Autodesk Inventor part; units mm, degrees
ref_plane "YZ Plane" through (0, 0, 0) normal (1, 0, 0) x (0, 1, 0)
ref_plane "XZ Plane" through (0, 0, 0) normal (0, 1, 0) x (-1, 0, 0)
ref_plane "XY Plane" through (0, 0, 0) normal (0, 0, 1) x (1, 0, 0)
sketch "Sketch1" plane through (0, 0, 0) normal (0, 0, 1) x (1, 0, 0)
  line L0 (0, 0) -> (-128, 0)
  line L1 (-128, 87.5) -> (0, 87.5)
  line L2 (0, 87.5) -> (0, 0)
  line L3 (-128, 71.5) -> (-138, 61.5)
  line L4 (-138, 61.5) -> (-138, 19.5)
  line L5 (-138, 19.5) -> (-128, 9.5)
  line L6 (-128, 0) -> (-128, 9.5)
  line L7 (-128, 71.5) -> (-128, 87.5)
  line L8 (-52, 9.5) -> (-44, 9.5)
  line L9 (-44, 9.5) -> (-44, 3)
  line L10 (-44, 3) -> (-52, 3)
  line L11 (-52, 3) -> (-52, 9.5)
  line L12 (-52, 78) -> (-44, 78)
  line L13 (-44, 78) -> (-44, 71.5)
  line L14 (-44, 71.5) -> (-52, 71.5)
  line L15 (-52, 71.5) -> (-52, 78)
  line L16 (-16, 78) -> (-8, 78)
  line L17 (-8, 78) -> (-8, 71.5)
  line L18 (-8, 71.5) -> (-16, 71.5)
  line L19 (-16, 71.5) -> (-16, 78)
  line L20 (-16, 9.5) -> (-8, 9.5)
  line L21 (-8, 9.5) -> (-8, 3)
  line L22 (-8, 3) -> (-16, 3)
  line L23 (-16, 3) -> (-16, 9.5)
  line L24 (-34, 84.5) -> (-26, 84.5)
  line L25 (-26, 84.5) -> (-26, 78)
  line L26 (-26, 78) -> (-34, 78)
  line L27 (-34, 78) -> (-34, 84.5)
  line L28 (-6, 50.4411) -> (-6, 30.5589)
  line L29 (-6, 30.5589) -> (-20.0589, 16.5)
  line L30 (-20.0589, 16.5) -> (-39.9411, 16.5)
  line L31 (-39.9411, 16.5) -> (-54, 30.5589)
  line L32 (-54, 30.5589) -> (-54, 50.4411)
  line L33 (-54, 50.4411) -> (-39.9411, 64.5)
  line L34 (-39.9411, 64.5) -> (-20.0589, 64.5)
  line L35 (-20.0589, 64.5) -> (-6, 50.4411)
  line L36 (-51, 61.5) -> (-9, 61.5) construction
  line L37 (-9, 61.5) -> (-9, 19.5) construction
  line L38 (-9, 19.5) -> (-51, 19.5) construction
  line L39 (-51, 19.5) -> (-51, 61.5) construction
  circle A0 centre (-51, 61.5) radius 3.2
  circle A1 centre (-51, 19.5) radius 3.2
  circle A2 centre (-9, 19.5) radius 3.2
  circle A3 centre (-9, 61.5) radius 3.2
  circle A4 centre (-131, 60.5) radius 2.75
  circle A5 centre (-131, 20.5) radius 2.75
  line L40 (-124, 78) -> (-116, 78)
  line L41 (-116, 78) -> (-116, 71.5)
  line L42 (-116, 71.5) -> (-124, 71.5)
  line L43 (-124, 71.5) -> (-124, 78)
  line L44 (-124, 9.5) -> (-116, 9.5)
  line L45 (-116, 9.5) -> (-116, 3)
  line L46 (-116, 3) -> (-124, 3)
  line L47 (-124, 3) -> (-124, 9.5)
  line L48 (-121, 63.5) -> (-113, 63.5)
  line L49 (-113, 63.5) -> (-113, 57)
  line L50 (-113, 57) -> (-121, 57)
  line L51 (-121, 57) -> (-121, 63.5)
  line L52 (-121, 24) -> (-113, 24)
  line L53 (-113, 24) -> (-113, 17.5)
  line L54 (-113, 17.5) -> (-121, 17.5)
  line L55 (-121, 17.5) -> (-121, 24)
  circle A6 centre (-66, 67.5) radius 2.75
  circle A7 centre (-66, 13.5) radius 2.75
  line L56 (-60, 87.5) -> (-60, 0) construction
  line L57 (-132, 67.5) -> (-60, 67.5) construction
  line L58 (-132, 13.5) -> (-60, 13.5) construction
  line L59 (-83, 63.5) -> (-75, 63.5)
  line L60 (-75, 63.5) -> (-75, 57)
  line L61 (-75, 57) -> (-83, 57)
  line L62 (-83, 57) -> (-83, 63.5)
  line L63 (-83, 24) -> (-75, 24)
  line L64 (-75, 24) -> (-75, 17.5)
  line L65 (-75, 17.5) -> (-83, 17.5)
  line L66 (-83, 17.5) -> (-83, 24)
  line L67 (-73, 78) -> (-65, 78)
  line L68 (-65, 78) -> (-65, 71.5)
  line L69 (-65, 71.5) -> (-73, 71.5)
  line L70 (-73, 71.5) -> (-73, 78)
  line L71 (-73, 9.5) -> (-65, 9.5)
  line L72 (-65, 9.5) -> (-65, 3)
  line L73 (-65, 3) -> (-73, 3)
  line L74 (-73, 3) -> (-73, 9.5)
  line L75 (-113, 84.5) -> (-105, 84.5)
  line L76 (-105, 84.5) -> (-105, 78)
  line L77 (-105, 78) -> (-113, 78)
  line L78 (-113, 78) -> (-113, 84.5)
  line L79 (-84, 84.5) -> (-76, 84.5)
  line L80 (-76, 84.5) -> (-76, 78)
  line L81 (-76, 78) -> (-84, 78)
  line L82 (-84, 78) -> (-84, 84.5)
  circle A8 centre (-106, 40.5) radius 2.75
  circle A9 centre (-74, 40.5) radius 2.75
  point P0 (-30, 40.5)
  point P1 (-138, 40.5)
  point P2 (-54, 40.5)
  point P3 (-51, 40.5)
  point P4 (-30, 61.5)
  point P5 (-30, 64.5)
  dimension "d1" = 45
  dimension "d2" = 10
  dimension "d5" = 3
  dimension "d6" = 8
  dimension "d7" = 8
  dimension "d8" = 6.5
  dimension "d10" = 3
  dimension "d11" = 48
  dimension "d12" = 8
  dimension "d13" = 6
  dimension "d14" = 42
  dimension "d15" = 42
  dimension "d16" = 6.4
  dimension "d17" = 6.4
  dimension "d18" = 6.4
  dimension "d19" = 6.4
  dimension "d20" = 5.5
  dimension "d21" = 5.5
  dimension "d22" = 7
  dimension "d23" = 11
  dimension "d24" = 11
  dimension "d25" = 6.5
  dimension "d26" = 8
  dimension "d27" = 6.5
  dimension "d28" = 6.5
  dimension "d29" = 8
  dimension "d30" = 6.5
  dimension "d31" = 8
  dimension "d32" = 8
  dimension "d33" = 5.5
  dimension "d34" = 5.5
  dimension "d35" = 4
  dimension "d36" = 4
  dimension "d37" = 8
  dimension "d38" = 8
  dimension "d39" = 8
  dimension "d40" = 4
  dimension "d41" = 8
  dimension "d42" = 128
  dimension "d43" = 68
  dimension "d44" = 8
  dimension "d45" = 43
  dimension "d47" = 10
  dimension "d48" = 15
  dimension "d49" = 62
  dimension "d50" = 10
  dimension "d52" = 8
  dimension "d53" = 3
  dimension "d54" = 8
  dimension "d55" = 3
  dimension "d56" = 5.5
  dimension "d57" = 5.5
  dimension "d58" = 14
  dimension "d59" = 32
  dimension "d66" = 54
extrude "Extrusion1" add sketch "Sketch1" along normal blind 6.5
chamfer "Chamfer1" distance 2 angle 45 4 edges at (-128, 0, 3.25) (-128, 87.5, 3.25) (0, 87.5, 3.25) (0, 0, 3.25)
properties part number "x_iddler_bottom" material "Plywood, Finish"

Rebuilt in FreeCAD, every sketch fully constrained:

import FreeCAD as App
import Part
import Sketcher


def edges_at(feature, points):
    """Names of the edges that pass closest to the given points."""
    edges = feature.Shape.Edges
    near = lambda p: min(range(len(edges)), key=lambda i: edges[i].distToShape(Part.Vertex(*p))[0])
    return sorted({f"Edge{near(p) + 1}" for p in points})

doc = App.newDocument("Part")
params = doc.addObject("Spreadsheet::Sheet", "Params")
for row, (alias, value) in enumerate([
    ("sketch1_diameter", "5.5 mm"),
    ("sketch1_diameter2", "6.4 mm"),
    ("sketch1_width", "128 mm"),
    ("sketch1_width2", "8 mm"),
    ("sketch1_height", "42 mm"),
    ("pad1_length", "6.5 mm"),
    ("chamfer_size", "2 mm"),
], start=1):
    params.set(f"A{row}", alias)
    params.set(f"B{row}", "=" + value)
    params.setAlias(f"B{row}", alias)

body = doc.addObject("PartDesign::Body", "Body")

# Sketch on XY plane
sketch1 = body.newObject("Sketcher::SketchObject", "Sketch")
sketch1.AttachmentSupport = (doc.getObject("XY_Plane"), [""])
sketch1.MapMode = "FlatFace"
sketch1.addGeometry(Part.LineSegment(App.Vector(-128, 0, 0), App.Vector(0, 0, 0)), False)
sketch1.addGeometry(Part.LineSegment(App.Vector(0, 0, 0), App.Vector(0, 87.5, 0)), False)
sketch1.addGeometry(Part.LineSegment(App.Vector(0, 87.5, 0), App.Vector(-128, 87.5, 0)), False)
sketch1.addGeometry(Part.LineSegment(App.Vector(-128, 87.5, 0), App.Vector(-128, 71.5, 0)), False)
sketch1.addGeometry(Part.LineSegment(App.Vector(-128, 71.5, 0), App.Vector(-138, 61.5, 0)), False)
sketch1.addGeometry(Part.LineSegment(App.Vector(-138, 61.5, 0), App.Vector(-138, 19.5, 0)), False)
sketch1.addGeometry(Part.LineSegment(App.Vector(-138, 19.5, 0), App.Vector(-128, 9.5, 0)), False)
sketch1.addGeometry(Part.LineSegment(App.Vector(-128, 9.5, 0), App.Vector(-128, 0, 0)), False)
sketch1.addGeometry(Part.LineSegment(App.Vector(-124, 3, 0), App.Vector(-124, 9.5, 0)), False)
sketch1.addGeometry(Part.LineSegment(App.Vector(-124, 9.5, 0), App.Vector(-116, 9.5, 0)), False)
sketch1.addGeometry(Part.LineSegment(App.Vector(-116, 9.5, 0), App.Vector(-116, 3, 0)), False)
sketch1.addGeometry(Part.LineSegment(App.Vector(-116, 3, 0), App.Vector(-124, 3, 0)), False)
sketch1.addGeometry(Part.Circle(App.Vector(-131, 20.5, 0), App.Vector(0, 0, 1), 2.75), False)
sketch1.addGeometry(Part.LineSegment(App.Vector(-121, 17.5, 0), App.Vector(-121, 24, 0)), False)
sketch1.addGeometry(Part.LineSegment(App.Vector(-121, 24, 0), App.Vector(-113, 24, 0)), False)
sketch1.addGeometry(Part.LineSegment(App.Vector(-113, 24, 0), App.Vector(-113, 17.5, 0)), False)
sketch1.addGeometry(Part.LineSegment(App.Vector(-113, 17.5, 0), App.Vector(-121, 17.5, 0)), False)
sketch1.addGeometry(Part.LineSegment(App.Vector(-83, 17.5, 0), App.Vector(-83, 24, 0)), False)
sketch1.addGeometry(Part.LineSegment(App.Vector(-83, 24, 0), App.Vector(-75, 24, 0)), False)
sketch1.addGeometry(Part.LineSegment(App.Vector(-75, 24, 0), App.Vector(-75, 17.5, 0)), False)
sketch1.addGeometry(Part.LineSegment(App.Vector(-75, 17.5, 0), App.Vector(-83, 17.5, 0)), False)
sketch1.addGeometry(Part.Circle(App.Vector(-106, 40.5, 0), App.Vector(0, 0, 1), 2.75), False)
sketch1.addGeometry(Part.Circle(App.Vector(-74, 40.5, 0), App.Vector(0, 0, 1), 2.75), False)
sketch1.addGeometry(Part.LineSegment(App.Vector(-73, 3, 0), App.Vector(-73, 9.5, 0)), False)
sketch1.addGeometry(Part.LineSegment(App.Vector(-73, 9.5, 0), App.Vector(-65, 9.5, 0)), False)
sketch1.addGeometry(Part.LineSegment(App.Vector(-65, 9.5, 0), App.Vector(-65, 3, 0)), False)
sketch1.addGeometry(Part.LineSegment(App.Vector(-65, 3, 0), App.Vector(-73, 3, 0)), False)
sketch1.addGeometry(Part.LineSegment(App.Vector(-52, 3, 0), App.Vector(-52, 9.5, 0)), False)
sketch1.addGeometry(Part.LineSegment(App.Vector(-52, 9.5, 0), App.Vector(-44, 9.5, 0)), False)
sketch1.addGeometry(Part.LineSegment(App.Vector(-44, 9.5, 0), App.Vector(-44, 3, 0)), False)
sketch1.addGeometry(Part.LineSegment(App.Vector(-44, 3, 0), App.Vector(-52, 3, 0)), False)
sketch1.addGeometry(Part.Circle(App.Vector(-66, 13.5, 0), App.Vector(0, 0, 1), 2.75), False)
sketch1.addGeometry(Part.Circle(App.Vector(-51, 19.5, 0), App.Vector(0, 0, 1), 3.2), False)
sketch1.addGeometry(Part.LineSegment(App.Vector(-16, 3, 0), App.Vector(-16, 9.5, 0)), False)
sketch1.addGeometry(Part.LineSegment(App.Vector(-16, 9.5, 0), App.Vector(-8, 9.5, 0)), False)
sketch1.addGeometry(Part.LineSegment(App.Vector(-8, 9.5, 0), App.Vector(-8, 3, 0)), False)
sketch1.addGeometry(Part.LineSegment(App.Vector(-8, 3, 0), App.Vector(-16, 3, 0)), False)
sketch1.addGeometry(Part.Circle(App.Vector(-9, 19.5, 0), App.Vector(0, 0, 1), 3.2), False)
sketch1.addGeometry(Part.LineSegment(App.Vector(-20.0589, 64.5, 0), App.Vector(-6, 50.4411, 0)), False)
sketch1.addGeometry(Part.LineSegment(App.Vector(-6, 50.4411, 0), App.Vector(-6, 30.5589, 0)), False)
sketch1.addGeometry(Part.LineSegment(App.Vector(-6, 30.5589, 0), App.Vector(-20.0589, 16.5, 0)), False)
sketch1.addGeometry(Part.LineSegment(App.Vector(-20.0589, 16.5, 0), App.Vector(-39.9411, 16.5, 0)), False)
sketch1.addGeometry(Part.LineSegment(App.Vector(-39.9411, 16.5, 0), App.Vector(-54, 30.5589, 0)), False)
sketch1.addGeometry(Part.LineSegment(App.Vector(-54, 30.5589, 0), App.Vector(-54, 50.4411, 0)), False)
sketch1.addGeometry(Part.LineSegment(App.Vector(-54, 50.4411, 0), App.Vector(-39.9411, 64.5, 0)), False)
sketch1.addGeometry(Part.LineSegment(App.Vector(-39.9411, 64.5, 0), App.Vector(-20.0589, 64.5, 0)), False)
sketch1.addGeometry(Part.Circle(App.Vector(-131, 60.5, 0), App.Vector(0, 0, 1), 2.75), False)
sketch1.addGeometry(Part.LineSegment(App.Vector(-121, 57, 0), App.Vector(-121, 63.5, 0)), False)
sketch1.addGeometry(Part.LineSegment(App.Vector(-121, 63.5, 0), App.Vector(-113, 63.5, 0)), False)
sketch1.addGeometry(Part.LineSegment(App.Vector(-113, 63.5, 0), App.Vector(-113, 57, 0)), False)
sketch1.addGeometry(Part.LineSegment(App.Vector(-113, 57, 0), App.Vector(-121, 57, 0)), False)
sketch1.addGeometry(Part.LineSegment(App.Vector(-83, 57, 0), App.Vector(-83, 63.5, 0)), False)
sketch1.addGeometry(Part.LineSegment(App.Vector(-83, 63.5, 0), App.Vector(-75, 63.5, 0)), False)
sketch1.addGeometry(Part.LineSegment(App.Vector(-75, 63.5, 0), App.Vector(-75, 57, 0)), False)
sketch1.addGeometry(Part.LineSegment(App.Vector(-75, 57, 0), App.Vector(-83, 57, 0)), False)
sketch1.addGeometry(Part.LineSegment(App.Vector(-124, 71.5, 0), App.Vector(-124, 78, 0)), False)
sketch1.addGeometry(Part.LineSegment(App.Vector(-124, 78, 0), App.Vector(-116, 78, 0)), False)
sketch1.addGeometry(Part.LineSegment(App.Vector(-116, 78, 0), App.Vector(-116, 71.5, 0)), False)
sketch1.addGeometry(Part.LineSegment(App.Vector(-116, 71.5, 0), App.Vector(-124, 71.5, 0)), False)
sketch1.addGeometry(Part.LineSegment(App.Vector(-113, 78, 0), App.Vector(-113, 84.5, 0)), False)
sketch1.addGeometry(Part.LineSegment(App.Vector(-113, 84.5, 0), App.Vector(-105, 84.5, 0)), False)
sketch1.addGeometry(Part.LineSegment(App.Vector(-105, 84.5, 0), App.Vector(-105, 78, 0)), False)
sketch1.addGeometry(Part.LineSegment(App.Vector(-105, 78, 0), App.Vector(-113, 78, 0)), False)
sketch1.addGeometry(Part.LineSegment(App.Vector(-84, 78, 0), App.Vector(-84, 84.5, 0)), False)
sketch1.addGeometry(Part.LineSegment(App.Vector(-84, 84.5, 0), App.Vector(-76, 84.5, 0)), False)
sketch1.addGeometry(Part.LineSegment(App.Vector(-76, 84.5, 0), App.Vector(-76, 78, 0)), False)
sketch1.addGeometry(Part.LineSegment(App.Vector(-76, 78, 0), App.Vector(-84, 78, 0)), False)
sketch1.addGeometry(Part.Circle(App.Vector(-51, 61.5, 0), App.Vector(0, 0, 1), 3.2), False)
sketch1.addGeometry(Part.Circle(App.Vector(-9, 61.5, 0), App.Vector(0, 0, 1), 3.2), False)
sketch1.addGeometry(Part.Circle(App.Vector(-66, 67.5, 0), App.Vector(0, 0, 1), 2.75), False)
sketch1.addGeometry(Part.LineSegment(App.Vector(-73, 71.5, 0), App.Vector(-73, 78, 0)), False)
sketch1.addGeometry(Part.LineSegment(App.Vector(-73, 78, 0), App.Vector(-65, 78, 0)), False)
sketch1.addGeometry(Part.LineSegment(App.Vector(-65, 78, 0), App.Vector(-65, 71.5, 0)), False)
sketch1.addGeometry(Part.LineSegment(App.Vector(-65, 71.5, 0), App.Vector(-73, 71.5, 0)), False)
sketch1.addGeometry(Part.LineSegment(App.Vector(-52, 71.5, 0), App.Vector(-52, 78, 0)), False)
sketch1.addGeometry(Part.LineSegment(App.Vector(-52, 78, 0), App.Vector(-44, 78, 0)), False)
sketch1.addGeometry(Part.LineSegment(App.Vector(-44, 78, 0), App.Vector(-44, 71.5, 0)), False)
sketch1.addGeometry(Part.LineSegment(App.Vector(-44, 71.5, 0), App.Vector(-52, 71.5, 0)), False)
sketch1.addGeometry(Part.LineSegment(App.Vector(-16, 71.5, 0), App.Vector(-16, 78, 0)), False)
sketch1.addGeometry(Part.LineSegment(App.Vector(-16, 78, 0), App.Vector(-8, 78, 0)), False)
sketch1.addGeometry(Part.LineSegment(App.Vector(-8, 78, 0), App.Vector(-8, 71.5, 0)), False)
sketch1.addGeometry(Part.LineSegment(App.Vector(-8, 71.5, 0), App.Vector(-16, 71.5, 0)), False)
sketch1.addGeometry(Part.LineSegment(App.Vector(-34, 78, 0), App.Vector(-34, 84.5, 0)), False)
sketch1.addGeometry(Part.LineSegment(App.Vector(-34, 84.5, 0), App.Vector(-26, 84.5, 0)), False)
sketch1.addGeometry(Part.LineSegment(App.Vector(-26, 84.5, 0), App.Vector(-26, 78, 0)), False)
sketch1.addGeometry(Part.LineSegment(App.Vector(-26, 78, 0), App.Vector(-34, 78, 0)), False)
sketch1.addConstraint(Sketcher.Constraint("Coincident", 0, 2, 1, 1))
sketch1.addConstraint(Sketcher.Constraint("Coincident", 1, 2, 2, 1))
sketch1.addConstraint(Sketcher.Constraint("Coincident", 2, 2, 3, 1))
sketch1.addConstraint(Sketcher.Constraint("Coincident", 3, 2, 4, 1))
sketch1.addConstraint(Sketcher.Constraint("Coincident", 4, 2, 5, 1))
sketch1.addConstraint(Sketcher.Constraint("Coincident", 5, 2, 6, 1))
sketch1.addConstraint(Sketcher.Constraint("Coincident", 6, 2, 7, 1))
sketch1.addConstraint(Sketcher.Constraint("Coincident", 7, 2, 0, 1))
sketch1.addConstraint(Sketcher.Constraint("Coincident", 8, 2, 9, 1))
sketch1.addConstraint(Sketcher.Constraint("Coincident", 9, 2, 10, 1))
sketch1.addConstraint(Sketcher.Constraint("Coincident", 10, 2, 11, 1))
sketch1.addConstraint(Sketcher.Constraint("Coincident", 11, 2, 8, 1))
sketch1.addConstraint(Sketcher.Constraint("Coincident", 13, 2, 14, 1))
sketch1.addConstraint(Sketcher.Constraint("Coincident", 14, 2, 15, 1))
sketch1.addConstraint(Sketcher.Constraint("Coincident", 15, 2, 16, 1))
sketch1.addConstraint(Sketcher.Constraint("Coincident", 16, 2, 13, 1))
sketch1.addConstraint(Sketcher.Constraint("Coincident", 17, 2, 18, 1))
sketch1.addConstraint(Sketcher.Constraint("Coincident", 18, 2, 19, 1))
sketch1.addConstraint(Sketcher.Constraint("Coincident", 19, 2, 20, 1))
sketch1.addConstraint(Sketcher.Constraint("Coincident", 20, 2, 17, 1))
sketch1.addConstraint(Sketcher.Constraint("Coincident", 23, 2, 24, 1))
sketch1.addConstraint(Sketcher.Constraint("Coincident", 24, 2, 25, 1))
sketch1.addConstraint(Sketcher.Constraint("Coincident", 25, 2, 26, 1))
sketch1.addConstraint(Sketcher.Constraint("Coincident", 26, 2, 23, 1))
sketch1.addConstraint(Sketcher.Constraint("Coincident", 27, 2, 28, 1))
sketch1.addConstraint(Sketcher.Constraint("Coincident", 28, 2, 29, 1))
sketch1.addConstraint(Sketcher.Constraint("Coincident", 29, 2, 30, 1))
sketch1.addConstraint(Sketcher.Constraint("Coincident", 30, 2, 27, 1))
sketch1.addConstraint(Sketcher.Constraint("Coincident", 33, 2, 34, 1))
sketch1.addConstraint(Sketcher.Constraint("Coincident", 34, 2, 35, 1))
sketch1.addConstraint(Sketcher.Constraint("Coincident", 35, 2, 36, 1))
sketch1.addConstraint(Sketcher.Constraint("Coincident", 36, 2, 33, 1))
sketch1.addConstraint(Sketcher.Constraint("Coincident", 38, 2, 39, 1))
sketch1.addConstraint(Sketcher.Constraint("Coincident", 39, 2, 40, 1))
sketch1.addConstraint(Sketcher.Constraint("Coincident", 40, 2, 41, 1))
sketch1.addConstraint(Sketcher.Constraint("Coincident", 41, 2, 42, 1))
sketch1.addConstraint(Sketcher.Constraint("Coincident", 42, 2, 43, 1))
sketch1.addConstraint(Sketcher.Constraint("Coincident", 43, 2, 44, 1))
sketch1.addConstraint(Sketcher.Constraint("Coincident", 44, 2, 45, 1))
sketch1.addConstraint(Sketcher.Constraint("Coincident", 45, 2, 38, 1))
sketch1.addConstraint(Sketcher.Constraint("Coincident", 47, 2, 48, 1))
sketch1.addConstraint(Sketcher.Constraint("Coincident", 48, 2, 49, 1))
sketch1.addConstraint(Sketcher.Constraint("Coincident", 49, 2, 50, 1))
sketch1.addConstraint(Sketcher.Constraint("Coincident", 50, 2, 47, 1))
sketch1.addConstraint(Sketcher.Constraint("Coincident", 51, 2, 52, 1))
sketch1.addConstraint(Sketcher.Constraint("Coincident", 52, 2, 53, 1))
sketch1.addConstraint(Sketcher.Constraint("Coincident", 53, 2, 54, 1))
sketch1.addConstraint(Sketcher.Constraint("Coincident", 54, 2, 51, 1))
sketch1.addConstraint(Sketcher.Constraint("Coincident", 55, 2, 56, 1))
sketch1.addConstraint(Sketcher.Constraint("Coincident", 56, 2, 57, 1))
sketch1.addConstraint(Sketcher.Constraint("Coincident", 57, 2, 58, 1))
sketch1.addConstraint(Sketcher.Constraint("Coincident", 58, 2, 55, 1))
sketch1.addConstraint(Sketcher.Constraint("Coincident", 59, 2, 60, 1))
sketch1.addConstraint(Sketcher.Constraint("Coincident", 60, 2, 61, 1))
sketch1.addConstraint(Sketcher.Constraint("Coincident", 61, 2, 62, 1))
sketch1.addConstraint(Sketcher.Constraint("Coincident", 62, 2, 59, 1))
sketch1.addConstraint(Sketcher.Constraint("Coincident", 63, 2, 64, 1))
sketch1.addConstraint(Sketcher.Constraint("Coincident", 64, 2, 65, 1))
sketch1.addConstraint(Sketcher.Constraint("Coincident", 65, 2, 66, 1))
sketch1.addConstraint(Sketcher.Constraint("Coincident", 66, 2, 63, 1))
sketch1.addConstraint(Sketcher.Constraint("Coincident", 70, 2, 71, 1))
sketch1.addConstraint(Sketcher.Constraint("Coincident", 71, 2, 72, 1))
sketch1.addConstraint(Sketcher.Constraint("Coincident", 72, 2, 73, 1))
sketch1.addConstraint(Sketcher.Constraint("Coincident", 73, 2, 70, 1))
sketch1.addConstraint(Sketcher.Constraint("Coincident", 74, 2, 75, 1))
sketch1.addConstraint(Sketcher.Constraint("Coincident", 75, 2, 76, 1))
sketch1.addConstraint(Sketcher.Constraint("Coincident", 76, 2, 77, 1))
sketch1.addConstraint(Sketcher.Constraint("Coincident", 77, 2, 74, 1))
sketch1.addConstraint(Sketcher.Constraint("Coincident", 78, 2, 79, 1))
sketch1.addConstraint(Sketcher.Constraint("Coincident", 79, 2, 80, 1))
sketch1.addConstraint(Sketcher.Constraint("Coincident", 80, 2, 81, 1))
sketch1.addConstraint(Sketcher.Constraint("Coincident", 81, 2, 78, 1))
sketch1.addConstraint(Sketcher.Constraint("Coincident", 82, 2, 83, 1))
sketch1.addConstraint(Sketcher.Constraint("Coincident", 83, 2, 84, 1))
sketch1.addConstraint(Sketcher.Constraint("Coincident", 84, 2, 85, 1))
sketch1.addConstraint(Sketcher.Constraint("Coincident", 85, 2, 82, 1))
sketch1.addConstraint(Sketcher.Constraint("Horizontal", 0))
sketch1.addConstraint(Sketcher.Constraint("Vertical", 1))
sketch1.addConstraint(Sketcher.Constraint("Horizontal", 2))
sketch1.addConstraint(Sketcher.Constraint("Vertical", 3))
sketch1.addConstraint(Sketcher.Constraint("Vertical", 5))
sketch1.addConstraint(Sketcher.Constraint("Vertical", 7))
sketch1.addConstraint(Sketcher.Constraint("Vertical", 8))
sketch1.addConstraint(Sketcher.Constraint("Horizontal", 9))
sketch1.addConstraint(Sketcher.Constraint("Vertical", 10))
sketch1.addConstraint(Sketcher.Constraint("Horizontal", 11))
sketch1.addConstraint(Sketcher.Constraint("Vertical", 13))
sketch1.addConstraint(Sketcher.Constraint("Horizontal", 14))
sketch1.addConstraint(Sketcher.Constraint("Vertical", 15))
sketch1.addConstraint(Sketcher.Constraint("Horizontal", 16))
sketch1.addConstraint(Sketcher.Constraint("Vertical", 17))
sketch1.addConstraint(Sketcher.Constraint("Horizontal", 18))
sketch1.addConstraint(Sketcher.Constraint("Vertical", 19))
sketch1.addConstraint(Sketcher.Constraint("Horizontal", 20))
sketch1.addConstraint(Sketcher.Constraint("Vertical", 23))
sketch1.addConstraint(Sketcher.Constraint("Horizontal", 24))
sketch1.addConstraint(Sketcher.Constraint("Vertical", 25))
sketch1.addConstraint(Sketcher.Constraint("Horizontal", 26))
sketch1.addConstraint(Sketcher.Constraint("Vertical", 27))
sketch1.addConstraint(Sketcher.Constraint("Horizontal", 28))
sketch1.addConstraint(Sketcher.Constraint("Vertical", 29))
sketch1.addConstraint(Sketcher.Constraint("Horizontal", 30))
sketch1.addConstraint(Sketcher.Constraint("Vertical", 33))
sketch1.addConstraint(Sketcher.Constraint("Horizontal", 34))
sketch1.addConstraint(Sketcher.Constraint("Vertical", 35))
sketch1.addConstraint(Sketcher.Constraint("Horizontal", 36))
sketch1.addConstraint(Sketcher.Constraint("Vertical", 39))
sketch1.addConstraint(Sketcher.Constraint("Horizontal", 41))
sketch1.addConstraint(Sketcher.Constraint("Vertical", 43))
sketch1.addConstraint(Sketcher.Constraint("Horizontal", 45))
sketch1.addConstraint(Sketcher.Constraint("Vertical", 47))
sketch1.addConstraint(Sketcher.Constraint("Horizontal", 48))
sketch1.addConstraint(Sketcher.Constraint("Vertical", 49))
sketch1.addConstraint(Sketcher.Constraint("Horizontal", 50))
sketch1.addConstraint(Sketcher.Constraint("Vertical", 51))
sketch1.addConstraint(Sketcher.Constraint("Horizontal", 52))
sketch1.addConstraint(Sketcher.Constraint("Vertical", 53))
sketch1.addConstraint(Sketcher.Constraint("Horizontal", 54))
sketch1.addConstraint(Sketcher.Constraint("Vertical", 55))
sketch1.addConstraint(Sketcher.Constraint("Horizontal", 56))
sketch1.addConstraint(Sketcher.Constraint("Vertical", 57))
sketch1.addConstraint(Sketcher.Constraint("Horizontal", 58))
sketch1.addConstraint(Sketcher.Constraint("Vertical", 59))
sketch1.addConstraint(Sketcher.Constraint("Horizontal", 60))
sketch1.addConstraint(Sketcher.Constraint("Vertical", 61))
sketch1.addConstraint(Sketcher.Constraint("Horizontal", 62))
sketch1.addConstraint(Sketcher.Constraint("Vertical", 63))
sketch1.addConstraint(Sketcher.Constraint("Horizontal", 64))
sketch1.addConstraint(Sketcher.Constraint("Vertical", 65))
sketch1.addConstraint(Sketcher.Constraint("Horizontal", 66))
sketch1.addConstraint(Sketcher.Constraint("Vertical", 70))
sketch1.addConstraint(Sketcher.Constraint("Horizontal", 71))
sketch1.addConstraint(Sketcher.Constraint("Vertical", 72))
sketch1.addConstraint(Sketcher.Constraint("Horizontal", 73))
sketch1.addConstraint(Sketcher.Constraint("Vertical", 74))
sketch1.addConstraint(Sketcher.Constraint("Horizontal", 75))
sketch1.addConstraint(Sketcher.Constraint("Vertical", 76))
sketch1.addConstraint(Sketcher.Constraint("Horizontal", 77))
sketch1.addConstraint(Sketcher.Constraint("Vertical", 78))
sketch1.addConstraint(Sketcher.Constraint("Horizontal", 79))
sketch1.addConstraint(Sketcher.Constraint("Vertical", 80))
sketch1.addConstraint(Sketcher.Constraint("Horizontal", 81))
sketch1.addConstraint(Sketcher.Constraint("Vertical", 82))
sketch1.addConstraint(Sketcher.Constraint("Horizontal", 83))
sketch1.addConstraint(Sketcher.Constraint("Vertical", 84))
sketch1.addConstraint(Sketcher.Constraint("Horizontal", 85))
sketch1.addConstraint(Sketcher.Constraint("Coincident", 0, 2, -1, 1))
sketch1.addConstraint(Sketcher.Constraint("Equal", 12, 21))
sketch1.addConstraint(Sketcher.Constraint("Equal", 21, 22))
sketch1.addConstraint(Sketcher.Constraint("Equal", 22, 31))
sketch1.addConstraint(Sketcher.Constraint("Equal", 32, 37))
sketch1.addConstraint(Sketcher.Constraint("Equal", 31, 46))
sketch1.addConstraint(Sketcher.Constraint("Equal", 37, 67))
sketch1.addConstraint(Sketcher.Constraint("Equal", 67, 68))
sketch1.addConstraint(Sketcher.Constraint("Equal", 46, 69))
sketch1.addConstraint(Sketcher.Constraint("Perpendicular", 4, 6))
sketch1.addConstraint(Sketcher.Constraint("Parallel", 6, 38))
sketch1.addConstraint(Sketcher.Constraint("Perpendicular", 38, 40))
sketch1.addConstraint(Sketcher.Constraint("Perpendicular", 40, 42))
sketch1.addConstraint(Sketcher.Constraint("Perpendicular", 42, 44))
sketch1.addConstraint(Sketcher.Constraint("Horizontal", 21, 3, 22, 3))
sketch1.addConstraint(Sketcher.Constraint("Horizontal", 32, 3, 37, 3))
sketch1.addConstraint(Sketcher.Constraint("Horizontal", 67, 3, 68, 3))
sketch1.addConstraint(Sketcher.Constraint("Horizontal", 68, 3, 4, 2))
sketch1.addConstraint(Sketcher.Constraint("Horizontal", 37, 3, 5, 2))
sketch1.addConstraint(Sketcher.Constraint("Horizontal", 6, 2, 8, 2))
sketch1.addConstraint(Sketcher.Constraint("Horizontal", 14, 2, 17, 2))
sketch1.addConstraint(Sketcher.Constraint("Horizontal", 16, 2, 19, 2))
sketch1.addConstraint(Sketcher.Constraint("Horizontal", 9, 2, 23, 2))
sketch1.addConstraint(Sketcher.Constraint("Horizontal", 11, 2, 25, 2))
sketch1.addConstraint(Sketcher.Constraint("Horizontal", 24, 2, 27, 2))
sketch1.addConstraint(Sketcher.Constraint("Horizontal", 26, 2, 29, 2))
sketch1.addConstraint(Sketcher.Constraint("Horizontal", 28, 2, 33, 2))
sketch1.addConstraint(Sketcher.Constraint("Horizontal", 30, 2, 35, 2))
sketch1.addConstraint(Sketcher.Constraint("Horizontal", 39, 2, 42, 2))
sketch1.addConstraint(Sketcher.Constraint("Horizontal", 38, 2, 43, 2))
sketch1.addConstraint(Sketcher.Constraint("Horizontal", 48, 2, 51, 2))
sketch1.addConstraint(Sketcher.Constraint("Horizontal", 50, 2, 53, 2))
sketch1.addConstraint(Sketcher.Constraint("Horizontal", 3, 2, 57, 2))
sketch1.addConstraint(Sketcher.Constraint("Horizontal", 56, 2, 61, 2))
sketch1.addConstraint(Sketcher.Constraint("Horizontal", 60, 2, 63, 2))
sketch1.addConstraint(Sketcher.Constraint("Horizontal", 62, 2, 65, 2))
sketch1.addConstraint(Sketcher.Constraint("Horizontal", 66, 2, 70, 2))
sketch1.addConstraint(Sketcher.Constraint("Horizontal", 58, 2, 72, 2))
sketch1.addConstraint(Sketcher.Constraint("Horizontal", 71, 2, 74, 2))
sketch1.addConstraint(Sketcher.Constraint("Horizontal", 73, 2, 76, 2))
sketch1.addConstraint(Sketcher.Constraint("Horizontal", 75, 2, 78, 2))
sketch1.addConstraint(Sketcher.Constraint("Horizontal", 77, 2, 80, 2))
sketch1.addConstraint(Sketcher.Constraint("Horizontal", 64, 2, 82, 2))
sketch1.addConstraint(Sketcher.Constraint("Horizontal", 79, 2, 84, 2))
sketch1.addConstraint(Sketcher.Constraint("Vertical", 12, 3, 46, 3))
sketch1.addConstraint(Sketcher.Constraint("Vertical", 32, 3, 67, 3))
sketch1.addConstraint(Sketcher.Constraint("Vertical", 37, 3, 68, 3))
sketch1.addConstraint(Sketcher.Constraint("Vertical", 31, 3, 69, 3))
sketch1.addConstraint(Sketcher.Constraint("Vertical", 3, 2, 6, 2))
sketch1.addConstraint(Sketcher.Constraint("Vertical", 41, 2, 44, 2))
sketch1.addConstraint(Sketcher.Constraint("Vertical", 40, 2, 45, 2))
sketch1.addConstraint(Sketcher.Constraint("Vertical", 16, 2, 47, 2))
sketch1.addConstraint(Sketcher.Constraint("Vertical", 15, 2, 48, 2))
sketch1.addConstraint(Sketcher.Constraint("Vertical", 20, 2, 51, 2))
sketch1.addConstraint(Sketcher.Constraint("Vertical", 19, 2, 52, 2))
sketch1.addConstraint(Sketcher.Constraint("Vertical", 11, 2, 55, 2))
sketch1.addConstraint(Sketcher.Constraint("Vertical", 10, 2, 56, 2))
sketch1.addConstraint(Sketcher.Constraint("Vertical", 49, 2, 59, 2))
sketch1.addConstraint(Sketcher.Constraint("Vertical", 26, 2, 70, 2))
sketch1.addConstraint(Sketcher.Constraint("Vertical", 25, 2, 71, 2))
sketch1.addConstraint(Sketcher.Constraint("Vertical", 30, 2, 74, 2))
sketch1.addConstraint(Sketcher.Constraint("Vertical", 29, 2, 75, 2))
sketch1.addConstraint(Sketcher.Constraint("Vertical", 36, 2, 78, 2))
sketch1.addConstraint(Sketcher.Constraint("Vertical", 35, 2, 79, 2))
sketch1.addConstraint(Sketcher.Constraint("Equal", 11, 14))
sketch1.addConstraint(Sketcher.Constraint("Equal", 16, 18))
sketch1.addConstraint(Sketcher.Constraint("Equal", 20, 24))
sketch1.addConstraint(Sketcher.Constraint("Equal", 26, 28))
sketch1.addConstraint(Sketcher.Constraint("Equal", 30, 34))
sketch1.addConstraint(Sketcher.Constraint("Equal", 58, 60))
sketch1.addConstraint(Sketcher.Constraint("Equal", 62, 64))
sketch1.addConstraint(Sketcher.Constraint("Equal", 81, 83))
sketch1.addConstraint(Sketcher.Constraint("Equal", 10, 13))
sketch1.addConstraint(Sketcher.Constraint("Equal", 45, 39))
sketch1.addConstraint(Sketcher.Constraint("Equal", 35, 47))
sketch1.addConstraint(Sketcher.Constraint("Equal", 53, 55))
sketch1.addConstraint(Sketcher.Constraint("Equal", 57, 59))
sketch1.addConstraint(Sketcher.Constraint("Diameter", 12, 5.5))
sketch1.addConstraint(Sketcher.Constraint("Diameter", 32, 6.4))
sketch1.addConstraint(Sketcher.Constraint("DistanceX", 0, 1, 0, 2, 128.0))
sketch1.addConstraint(Sketcher.Constraint("DistanceX", 9, 1, 9, 2, 8.0))
sketch1.addConstraint(Sketcher.Constraint("DistanceY", 5, 2, 5, 1, 42.0))
sketch1.addConstraint(Sketcher.Constraint("DistanceY", 8, 1, 8, 2, 6.5))
sketch1.addConstraint(Sketcher.Constraint("DistanceY", -1, 1, 10, 2, 3.0))
sketch1.addConstraint(Sketcher.Constraint("DistanceX", 34, 2, -1, 1, 8.0))
sketch1.addConstraint(Sketcher.Constraint("DistanceX", 38, 2, -1, 1, 6.0))
sketch1.addConstraint(Sketcher.Constraint("DistanceX", 42, 2, -1, 1, 54.0))
sketch1.addConstraint(Sketcher.Constraint("DistanceY", 3, 2, 3, 1, 16.0))
sketch1.addConstraint(Sketcher.Constraint("DistanceY", 1, 1, 1, 2, 87.5))
sketch1.addConstraint(Sketcher.Constraint("DistanceX", 12, 3, -1, 1, 131.0))
sketch1.addConstraint(Sketcher.Constraint("DistanceX", 21, 3, -1, 1, 106.0))
sketch1.addConstraint(Sketcher.Constraint("DistanceX", 22, 3, -1, 1, 74.0))
sketch1.addConstraint(Sketcher.Constraint("DistanceX", 31, 3, -1, 1, 66.0))
sketch1.addConstraint(Sketcher.Constraint("DistanceX", 32, 3, -1, 1, 51.0))
sketch1.addConstraint(Sketcher.Constraint("DistanceX", 37, 3, -1, 1, 9.0))
sketch1.addConstraint(Sketcher.Constraint("DistanceX", 8, 2, -1, 1, 124.0))
sketch1.addConstraint(Sketcher.Constraint("DistanceX", 13, 2, -1, 1, 121.0))
sketch1.addConstraint(Sketcher.Constraint("DistanceY", -1, 1, 13, 2, 24.0))
sketch1.addConstraint(Sketcher.Constraint("DistanceX", 17, 2, -1, 1, 83.0))
sketch1.addConstraint(Sketcher.Constraint("DistanceX", 23, 2, -1, 1, 73.0))
sketch1.addConstraint(Sketcher.Constraint("DistanceX", 27, 2, -1, 1, 52.0))
sketch1.addConstraint(Sketcher.Constraint("DistanceY", -1, 1, 49, 2, 57.0))
sketch1.addConstraint(Sketcher.Constraint("DistanceX", 63, 2, -1, 1, 84.0))
sketch1.addConstraint(Sketcher.Constraint("DistanceX", 82, 2, -1, 1, 34.0))
sketch1.addConstraint(Sketcher.Constraint("DistanceY", -1, 1, 12, 3, 20.5))
sketch1.addConstraint(Sketcher.Constraint("DistanceY", -1, 1, 21, 3, 40.5))
sketch1.addConstraint(Sketcher.Constraint("DistanceY", -1, 1, 31, 3, 13.5))
sketch1.addConstraint(Sketcher.Constraint("DistanceY", -1, 1, 46, 3, 60.5))
sketch1.addConstraint(Sketcher.Constraint("DistanceY", -1, 1, 69, 3, 67.5))
sketch1.addConstraint(Sketcher.Constraint("DistanceY", -1, 1, 40, 2, 16.5))
sketch1.addConstraint(Sketcher.Constraint("DistanceX", 41, 2, 41, 1, 19.8822))
sketch1.setExpression("Constraints[223]", "Params.sketch1_diameter")
sketch1.setExpression("Constraints[224]", "Params.sketch1_diameter2")
sketch1.setExpression("Constraints[225]", "Params.sketch1_width")
sketch1.setExpression("Constraints[226]", "Params.sketch1_width2")
sketch1.setExpression("Constraints[227]", "Params.sketch1_height")
pad1 = body.newObject("PartDesign::Pad", "Pad")
pad1.Profile = sketch1
pad1.setExpression("Length", "Params.pad1_length")
doc.recompute()

chamfer = body.newObject("PartDesign::Chamfer", "Chamfer")
chamfer.Base = (pad1, edges_at(pad1, [
    (-128, 0, 3.25),
    (-128, 87.5, 3.25),
    (0, 87.5, 3.25),
    (0, 0, 3.25),
]))
chamfer.setExpression("Size", "Params.chamfer_size")

doc.recompute()
